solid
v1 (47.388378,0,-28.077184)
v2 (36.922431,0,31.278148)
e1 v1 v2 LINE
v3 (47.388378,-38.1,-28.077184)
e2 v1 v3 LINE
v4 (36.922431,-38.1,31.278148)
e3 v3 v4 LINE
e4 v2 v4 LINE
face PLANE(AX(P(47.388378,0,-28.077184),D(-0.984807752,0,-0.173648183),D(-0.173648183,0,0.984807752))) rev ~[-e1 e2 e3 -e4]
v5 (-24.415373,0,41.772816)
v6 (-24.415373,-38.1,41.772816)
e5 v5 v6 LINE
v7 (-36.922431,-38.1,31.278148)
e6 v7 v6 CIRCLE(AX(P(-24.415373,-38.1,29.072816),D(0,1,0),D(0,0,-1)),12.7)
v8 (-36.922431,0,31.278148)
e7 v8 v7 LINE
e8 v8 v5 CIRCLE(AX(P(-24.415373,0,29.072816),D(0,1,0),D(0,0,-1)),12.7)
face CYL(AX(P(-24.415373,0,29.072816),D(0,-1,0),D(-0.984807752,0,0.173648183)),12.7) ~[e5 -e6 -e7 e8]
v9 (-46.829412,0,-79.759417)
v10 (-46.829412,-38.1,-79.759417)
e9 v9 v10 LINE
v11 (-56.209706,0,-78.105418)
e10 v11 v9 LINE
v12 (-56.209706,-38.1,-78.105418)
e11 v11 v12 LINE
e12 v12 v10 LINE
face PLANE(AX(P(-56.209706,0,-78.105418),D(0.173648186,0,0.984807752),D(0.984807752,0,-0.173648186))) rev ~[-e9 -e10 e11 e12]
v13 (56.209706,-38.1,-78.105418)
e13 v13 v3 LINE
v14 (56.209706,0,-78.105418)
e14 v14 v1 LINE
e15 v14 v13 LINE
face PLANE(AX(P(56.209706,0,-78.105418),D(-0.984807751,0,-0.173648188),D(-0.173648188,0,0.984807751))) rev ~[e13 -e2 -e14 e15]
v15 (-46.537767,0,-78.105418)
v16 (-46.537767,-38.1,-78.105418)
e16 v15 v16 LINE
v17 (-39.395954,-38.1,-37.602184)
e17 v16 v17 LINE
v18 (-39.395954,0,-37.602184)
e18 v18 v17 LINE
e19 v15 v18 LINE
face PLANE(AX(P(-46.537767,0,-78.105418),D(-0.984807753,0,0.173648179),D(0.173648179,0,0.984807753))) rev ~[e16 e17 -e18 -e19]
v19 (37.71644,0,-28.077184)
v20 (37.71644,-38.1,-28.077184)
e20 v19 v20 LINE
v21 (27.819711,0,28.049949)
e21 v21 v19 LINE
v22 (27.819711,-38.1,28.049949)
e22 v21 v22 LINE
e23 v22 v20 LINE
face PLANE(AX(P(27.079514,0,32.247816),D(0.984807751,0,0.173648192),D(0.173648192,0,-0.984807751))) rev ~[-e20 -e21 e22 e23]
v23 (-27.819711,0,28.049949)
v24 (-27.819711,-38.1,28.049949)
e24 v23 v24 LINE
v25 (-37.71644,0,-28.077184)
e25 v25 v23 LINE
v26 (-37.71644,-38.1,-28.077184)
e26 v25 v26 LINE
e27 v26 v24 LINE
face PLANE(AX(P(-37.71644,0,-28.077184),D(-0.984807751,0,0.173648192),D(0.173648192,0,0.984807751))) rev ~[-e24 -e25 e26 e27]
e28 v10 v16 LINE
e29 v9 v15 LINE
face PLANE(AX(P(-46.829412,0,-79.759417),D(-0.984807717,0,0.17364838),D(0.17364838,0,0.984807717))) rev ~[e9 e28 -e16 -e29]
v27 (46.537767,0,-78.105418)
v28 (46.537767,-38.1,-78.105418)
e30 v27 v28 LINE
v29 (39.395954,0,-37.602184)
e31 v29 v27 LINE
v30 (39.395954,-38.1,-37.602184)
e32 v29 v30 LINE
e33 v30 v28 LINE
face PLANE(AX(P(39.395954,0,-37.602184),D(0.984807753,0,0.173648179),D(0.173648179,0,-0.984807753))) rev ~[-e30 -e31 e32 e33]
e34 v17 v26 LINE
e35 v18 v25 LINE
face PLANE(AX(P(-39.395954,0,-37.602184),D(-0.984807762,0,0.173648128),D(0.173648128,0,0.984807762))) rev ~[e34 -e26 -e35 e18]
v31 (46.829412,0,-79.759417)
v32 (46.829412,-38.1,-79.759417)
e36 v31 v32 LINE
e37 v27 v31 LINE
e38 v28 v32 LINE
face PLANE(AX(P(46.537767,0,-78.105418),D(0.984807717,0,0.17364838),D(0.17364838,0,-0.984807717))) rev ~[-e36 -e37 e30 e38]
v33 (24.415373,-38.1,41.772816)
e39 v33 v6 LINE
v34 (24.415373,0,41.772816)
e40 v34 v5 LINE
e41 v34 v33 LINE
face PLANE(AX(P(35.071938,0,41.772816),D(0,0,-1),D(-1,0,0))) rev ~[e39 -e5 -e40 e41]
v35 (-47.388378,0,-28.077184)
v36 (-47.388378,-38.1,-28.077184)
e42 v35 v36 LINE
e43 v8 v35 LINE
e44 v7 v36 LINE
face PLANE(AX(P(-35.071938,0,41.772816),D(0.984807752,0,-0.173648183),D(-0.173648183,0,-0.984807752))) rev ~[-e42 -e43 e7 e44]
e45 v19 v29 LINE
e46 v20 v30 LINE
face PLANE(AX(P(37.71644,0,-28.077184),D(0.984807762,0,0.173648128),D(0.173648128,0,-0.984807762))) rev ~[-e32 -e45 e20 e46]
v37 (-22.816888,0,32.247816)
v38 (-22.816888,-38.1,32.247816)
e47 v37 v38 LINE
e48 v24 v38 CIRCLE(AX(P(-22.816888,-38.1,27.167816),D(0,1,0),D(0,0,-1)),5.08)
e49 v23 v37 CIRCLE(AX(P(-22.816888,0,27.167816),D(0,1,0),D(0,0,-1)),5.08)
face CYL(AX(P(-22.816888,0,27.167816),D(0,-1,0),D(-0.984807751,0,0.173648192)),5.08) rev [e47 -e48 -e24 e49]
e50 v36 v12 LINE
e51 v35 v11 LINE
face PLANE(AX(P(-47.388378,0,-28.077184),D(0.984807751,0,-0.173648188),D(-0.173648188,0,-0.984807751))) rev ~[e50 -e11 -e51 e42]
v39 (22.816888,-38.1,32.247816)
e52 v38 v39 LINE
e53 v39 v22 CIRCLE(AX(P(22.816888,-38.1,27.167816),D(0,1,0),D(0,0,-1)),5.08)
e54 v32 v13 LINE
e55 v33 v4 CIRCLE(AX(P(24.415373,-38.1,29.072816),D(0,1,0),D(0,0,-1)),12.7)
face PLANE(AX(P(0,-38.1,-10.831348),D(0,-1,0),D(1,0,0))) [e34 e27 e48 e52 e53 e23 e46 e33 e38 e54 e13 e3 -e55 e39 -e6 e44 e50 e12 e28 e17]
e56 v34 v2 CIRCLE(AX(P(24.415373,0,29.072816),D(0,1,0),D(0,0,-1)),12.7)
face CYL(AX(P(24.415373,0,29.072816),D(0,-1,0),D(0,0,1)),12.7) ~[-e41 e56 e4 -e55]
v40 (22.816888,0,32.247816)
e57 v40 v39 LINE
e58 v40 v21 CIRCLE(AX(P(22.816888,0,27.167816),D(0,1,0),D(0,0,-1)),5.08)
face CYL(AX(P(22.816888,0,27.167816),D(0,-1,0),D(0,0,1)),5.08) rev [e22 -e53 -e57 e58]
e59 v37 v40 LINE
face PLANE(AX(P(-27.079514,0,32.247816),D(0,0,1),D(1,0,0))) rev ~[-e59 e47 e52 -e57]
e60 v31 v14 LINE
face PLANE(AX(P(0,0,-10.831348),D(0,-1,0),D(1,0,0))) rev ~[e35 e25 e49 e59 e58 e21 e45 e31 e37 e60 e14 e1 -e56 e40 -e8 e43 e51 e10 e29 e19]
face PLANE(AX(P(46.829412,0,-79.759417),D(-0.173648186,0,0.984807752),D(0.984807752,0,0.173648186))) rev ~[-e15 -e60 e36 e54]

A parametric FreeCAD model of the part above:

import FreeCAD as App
import Part
import Sketcher
Q = App.Units.Quantity


def edges_at(feature, points):
    """Names of the edges that pass closest to the given points."""
    edges = feature.Shape.Edges
    near = lambda p: min(range(len(edges)), key=lambda i: edges[i].distToShape(Part.Vertex(*p))[0])
    return sorted({f"Edge{near(p) + 1}" for p in points})

doc = App.newDocument("Part")
body = doc.addObject("PartDesign::Body", "Body")

sketch1 = doc.addObject("Sketcher::SketchObject", "Sketch")
body.addObject(sketch1)
sketch1.AttachmentSupport = (doc.XZ_Plane, [""])
sketch1.MapMode = "FlatFace"
sketch1.addGeometry([
    Part.LineSegment(App.Vector(47.4, -28.1, 0), App.Vector(35.1, 41.8, 0)),
    Part.LineSegment(App.Vector(35.1, 41.8, 0), App.Vector(-35.1, 41.8, 0)),
    Part.LineSegment(App.Vector(-35.1, 41.8, 0), App.Vector(-47.4, -28.1, 0)),
    Part.LineSegment(App.Vector(-47.4, -28.1, 0), App.Vector(-56.2, -78.1, 0)),
    Part.LineSegment(App.Vector(-56.2, -78.1, 0), App.Vector(-46.8, -79.8, 0)),
    Part.LineSegment(App.Vector(-46.8, -79.8, 0), App.Vector(-46.5, -78.1, 0)),
    Part.LineSegment(App.Vector(-46.5, -78.1, 0), App.Vector(-39.4, -37.6, 0)),
    Part.LineSegment(App.Vector(-39.4, -37.6, 0), App.Vector(-37.7, -28.1, 0)),
    Part.LineSegment(App.Vector(-37.7, -28.1, 0), App.Vector(-27.1, 32.2, 0)),
    Part.LineSegment(App.Vector(-27.1, 32.2, 0), App.Vector(27.1, 32.2, 0)),
    Part.LineSegment(App.Vector(27.1, 32.2, 0), App.Vector(37.7, -28.1, 0)),
    Part.LineSegment(App.Vector(37.7, -28.1, 0), App.Vector(39.4, -37.6, 0)),
    Part.LineSegment(App.Vector(39.4, -37.6, 0), App.Vector(46.5, -78.1, 0)),
    Part.LineSegment(App.Vector(46.5, -78.1, 0), App.Vector(46.8, -79.8, 0)),
    Part.LineSegment(App.Vector(46.8, -79.8, 0), App.Vector(56.2, -78.1, 0)),
    Part.LineSegment(App.Vector(56.2, -78.1, 0), App.Vector(47.4, -28.1, 0)),
], False)
sketch1.addConstraint([
    Sketcher.Constraint("Coincident", 0, 2, 1, 1),
    Sketcher.Constraint("Coincident", 1, 2, 2, 1),
    Sketcher.Constraint("Coincident", 2, 2, 3, 1),
    Sketcher.Constraint("Coincident", 3, 2, 4, 1),
    Sketcher.Constraint("Coincident", 4, 2, 5, 1),
    Sketcher.Constraint("Coincident", 5, 2, 6, 1),
    Sketcher.Constraint("Coincident", 6, 2, 7, 1),
    Sketcher.Constraint("Coincident", 7, 2, 8, 1),
    Sketcher.Constraint("Coincident", 8, 2, 9, 1),
    Sketcher.Constraint("Coincident", 9, 2, 10, 1),
    Sketcher.Constraint("Coincident", 10, 2, 11, 1),
    Sketcher.Constraint("Coincident", 11, 2, 12, 1),
    Sketcher.Constraint("Coincident", 12, 2, 13, 1),
    Sketcher.Constraint("Coincident", 13, 2, 14, 1),
    Sketcher.Constraint("Coincident", 14, 2, 15, 1),
    Sketcher.Constraint("Coincident", 15, 2, 0, 1),
    Sketcher.Constraint("Horizontal", 1),
    Sketcher.Constraint("Horizontal", 9),
    Sketcher.Constraint("Symmetric", 7, 2, 10, 2, -2),
    Sketcher.Constraint("Symmetric", 6, 2, 11, 2, -2),
    Sketcher.Constraint("Symmetric", 5, 2, 12, 2, -2),
    Sketcher.Constraint("Symmetric", 4, 2, 13, 2, -2),
    Sketcher.Constraint("Symmetric", 3, 2, 14, 2, -2),
    Sketcher.Constraint("Symmetric", 2, 2, 15, 2, -2),
    Sketcher.Constraint("Parallel", 2, 3),
    Sketcher.Constraint("Perpendicular", 3, 4),
    Sketcher.Constraint("Perpendicular", 4, 5),
    Sketcher.Constraint("Parallel", 5, 6),
    Sketcher.Constraint("Parallel", 6, 7),
    Sketcher.Constraint("Parallel", 7, 8),
    Sketcher.Constraint("Parallel", 0, 10),
    Sketcher.Constraint("Parallel", 10, 11),
    Sketcher.Constraint("Horizontal", 3, 2, 5, 2),
    Sketcher.Constraint("Horizontal", 2, 2, 7, 2),
    Sketcher.Constraint("Distance", 3, Q("2 in")),
    Sketcher.Constraint("Angle", 0, Q("100 deg")),
    Sketcher.Constraint("DistanceY", 2, 2, 1, 2, Q("2.75 in")),
    Sketcher.Constraint("DistanceY", 6, 2, 8, 2, Q("2.75 in")),
    Sketcher.Constraint("Distance", 4, Q("0.375 in")),
    Sketcher.Constraint("DistanceY", 6, 2, 2, 2, Q("0.375 in")),
    Sketcher.Constraint("DistanceX", 1, 2, 1, 1, 70.143876),
    Sketcher.Constraint("DistanceY", 3, 2, -1, 1, 78.105418),
])
pad1 = doc.addObject("PartDesign::Pad", "Pad")
body.addObject(pad1)
pad1.Profile = sketch1
pad1.Length = Q("1.5 in")
doc.recompute()

fillet = doc.addObject("PartDesign::Fillet", "Fillet")
body.addObject(fillet)
fillet.Base = (pad1, edges_at(pad1, [(-27.08, -19.05, 32.248), (27.08, -19.05, 32.248)]))
fillet.Radius = Q("0.2 in")
doc.recompute()

fillet2 = doc.addObject("PartDesign::Fillet", "Fillet001")
body.addObject(fillet2)
fillet2.Base = (fillet, edges_at(fillet, [(-35.072, -19.05, 41.773), (35.072, -19.05, 41.773)]))
fillet2.Radius = Q("0.5 in")

doc.recompute()
